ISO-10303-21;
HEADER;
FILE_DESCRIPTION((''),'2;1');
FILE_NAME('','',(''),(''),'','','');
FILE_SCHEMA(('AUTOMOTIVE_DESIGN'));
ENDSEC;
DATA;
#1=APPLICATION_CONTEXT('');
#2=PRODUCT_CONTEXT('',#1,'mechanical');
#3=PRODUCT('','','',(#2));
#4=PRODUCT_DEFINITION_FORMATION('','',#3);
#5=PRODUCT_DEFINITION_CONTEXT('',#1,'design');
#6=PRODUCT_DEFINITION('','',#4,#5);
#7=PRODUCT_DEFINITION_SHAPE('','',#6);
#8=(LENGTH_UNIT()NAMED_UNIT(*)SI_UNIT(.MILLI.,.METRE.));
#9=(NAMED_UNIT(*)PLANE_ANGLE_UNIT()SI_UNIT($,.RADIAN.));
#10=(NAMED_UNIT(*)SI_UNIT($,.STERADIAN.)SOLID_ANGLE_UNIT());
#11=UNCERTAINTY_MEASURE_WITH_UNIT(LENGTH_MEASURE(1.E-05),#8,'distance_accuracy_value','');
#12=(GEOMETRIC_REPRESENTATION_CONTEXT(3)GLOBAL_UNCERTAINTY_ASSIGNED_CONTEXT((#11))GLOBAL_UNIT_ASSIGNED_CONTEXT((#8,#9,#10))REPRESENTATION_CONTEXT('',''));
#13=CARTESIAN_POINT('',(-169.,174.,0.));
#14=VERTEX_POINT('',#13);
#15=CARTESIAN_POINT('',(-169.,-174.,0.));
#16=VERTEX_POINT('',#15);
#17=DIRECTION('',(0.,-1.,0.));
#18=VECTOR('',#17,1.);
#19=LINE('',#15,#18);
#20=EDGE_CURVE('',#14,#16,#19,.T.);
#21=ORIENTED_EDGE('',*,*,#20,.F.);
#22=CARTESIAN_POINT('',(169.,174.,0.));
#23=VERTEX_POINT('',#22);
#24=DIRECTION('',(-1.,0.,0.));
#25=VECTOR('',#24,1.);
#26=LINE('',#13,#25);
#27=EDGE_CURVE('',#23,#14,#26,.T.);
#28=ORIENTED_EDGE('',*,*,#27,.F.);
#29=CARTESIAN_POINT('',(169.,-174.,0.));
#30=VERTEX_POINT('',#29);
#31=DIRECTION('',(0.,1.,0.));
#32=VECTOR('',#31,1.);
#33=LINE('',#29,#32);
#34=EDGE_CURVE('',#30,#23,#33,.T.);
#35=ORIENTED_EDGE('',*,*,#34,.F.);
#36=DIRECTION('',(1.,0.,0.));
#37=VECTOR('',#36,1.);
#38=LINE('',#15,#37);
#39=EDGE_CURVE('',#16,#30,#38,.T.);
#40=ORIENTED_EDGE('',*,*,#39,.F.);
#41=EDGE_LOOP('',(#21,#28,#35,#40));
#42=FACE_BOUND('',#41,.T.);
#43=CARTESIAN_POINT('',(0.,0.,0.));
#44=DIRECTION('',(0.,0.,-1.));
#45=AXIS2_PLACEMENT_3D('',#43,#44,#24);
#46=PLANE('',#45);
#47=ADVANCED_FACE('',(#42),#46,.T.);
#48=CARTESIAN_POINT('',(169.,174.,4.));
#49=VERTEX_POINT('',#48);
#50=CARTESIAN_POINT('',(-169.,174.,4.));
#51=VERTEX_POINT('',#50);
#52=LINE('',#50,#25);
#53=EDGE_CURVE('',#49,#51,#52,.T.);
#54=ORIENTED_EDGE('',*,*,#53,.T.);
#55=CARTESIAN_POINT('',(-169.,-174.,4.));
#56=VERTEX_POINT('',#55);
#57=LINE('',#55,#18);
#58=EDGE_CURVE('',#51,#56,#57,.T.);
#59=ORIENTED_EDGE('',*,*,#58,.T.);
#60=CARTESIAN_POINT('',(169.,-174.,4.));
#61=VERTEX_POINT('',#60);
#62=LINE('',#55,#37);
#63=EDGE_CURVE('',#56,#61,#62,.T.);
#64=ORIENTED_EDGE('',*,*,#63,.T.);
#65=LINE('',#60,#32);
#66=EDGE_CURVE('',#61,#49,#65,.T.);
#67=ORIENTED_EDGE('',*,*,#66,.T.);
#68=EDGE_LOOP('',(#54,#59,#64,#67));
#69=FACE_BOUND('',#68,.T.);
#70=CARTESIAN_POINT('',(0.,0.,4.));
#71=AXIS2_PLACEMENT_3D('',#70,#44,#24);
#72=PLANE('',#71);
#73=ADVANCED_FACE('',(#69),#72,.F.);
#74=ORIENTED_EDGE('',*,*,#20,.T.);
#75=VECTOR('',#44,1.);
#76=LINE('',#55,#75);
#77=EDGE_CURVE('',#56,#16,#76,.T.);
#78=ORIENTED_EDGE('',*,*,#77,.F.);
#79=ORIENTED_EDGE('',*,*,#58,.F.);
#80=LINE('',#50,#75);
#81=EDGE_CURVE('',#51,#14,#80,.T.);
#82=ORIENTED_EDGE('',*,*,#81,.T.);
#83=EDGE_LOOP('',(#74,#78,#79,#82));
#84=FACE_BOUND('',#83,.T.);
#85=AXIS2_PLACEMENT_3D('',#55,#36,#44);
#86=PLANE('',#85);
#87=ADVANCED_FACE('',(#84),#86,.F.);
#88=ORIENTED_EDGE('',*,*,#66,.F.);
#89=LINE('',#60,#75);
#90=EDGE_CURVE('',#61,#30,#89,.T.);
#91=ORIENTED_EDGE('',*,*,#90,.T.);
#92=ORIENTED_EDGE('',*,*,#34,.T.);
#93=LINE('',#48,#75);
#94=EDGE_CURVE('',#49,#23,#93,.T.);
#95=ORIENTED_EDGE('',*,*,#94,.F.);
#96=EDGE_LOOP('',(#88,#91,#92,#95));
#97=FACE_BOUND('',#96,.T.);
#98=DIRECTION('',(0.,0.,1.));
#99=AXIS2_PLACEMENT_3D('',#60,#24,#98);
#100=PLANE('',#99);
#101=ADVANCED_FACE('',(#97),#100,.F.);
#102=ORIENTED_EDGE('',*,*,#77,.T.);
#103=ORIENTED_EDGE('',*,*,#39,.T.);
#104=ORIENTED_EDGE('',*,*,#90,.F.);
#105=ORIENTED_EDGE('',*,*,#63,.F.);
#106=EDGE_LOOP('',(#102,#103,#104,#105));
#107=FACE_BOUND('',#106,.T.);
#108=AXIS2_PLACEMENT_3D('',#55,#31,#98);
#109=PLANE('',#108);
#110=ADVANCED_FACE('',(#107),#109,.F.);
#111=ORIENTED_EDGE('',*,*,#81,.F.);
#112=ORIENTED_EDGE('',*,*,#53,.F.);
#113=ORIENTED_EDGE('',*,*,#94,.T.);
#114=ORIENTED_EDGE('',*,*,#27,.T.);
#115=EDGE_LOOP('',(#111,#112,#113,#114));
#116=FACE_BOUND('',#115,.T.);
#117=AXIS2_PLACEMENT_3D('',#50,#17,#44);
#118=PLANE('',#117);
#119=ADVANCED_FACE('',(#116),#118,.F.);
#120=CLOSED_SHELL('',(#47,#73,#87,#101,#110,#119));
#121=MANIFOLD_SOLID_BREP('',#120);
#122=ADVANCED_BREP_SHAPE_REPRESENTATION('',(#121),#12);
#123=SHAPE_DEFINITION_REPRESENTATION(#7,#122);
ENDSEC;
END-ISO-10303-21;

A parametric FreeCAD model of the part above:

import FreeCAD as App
import Part
import Sketcher

doc = App.newDocument("Part")
body = doc.addObject("PartDesign::Body", "Body")

sketch1 = body.newObject("Sketcher::SketchObject", "Sketch")
sketch1.AttachmentSupport = (doc.getObject("XY_Plane"), [""])
sketch1.MapMode = "FlatFace"
sketch1.addGeometry([
    Part.LineSegment(App.Vector(-169, 174, 0), App.Vector(-169, -174, 0)),
    Part.LineSegment(App.Vector(-169, -174, 0), App.Vector(169, -174, 0)),
    Part.LineSegment(App.Vector(169, -174, 0), App.Vector(169, 174, 0)),
    Part.LineSegment(App.Vector(169, 174, 0), App.Vector(-169, 174, 0)),
], False)
sketch1.addConstraint([
    Sketcher.Constraint("Coincident", 0, 2, 1, 1),
    Sketcher.Constraint("Coincident", 1, 2, 2, 1),
    Sketcher.Constraint("Coincident", 2, 2, 3, 1),
    Sketcher.Constraint("Coincident", 3, 2, 0, 1),
    Sketcher.Constraint("Vertical", 0),
    Sketcher.Constraint("Horizontal", 1),
    Sketcher.Constraint("Vertical", 2),
    Sketcher.Constraint("Horizontal", 3),
    Sketcher.Constraint("Symmetric", 0, 2, 2, 2, -1, 1),
    Sketcher.Constraint("DistanceX", 1, 1, 1, 2, 338.0),
    Sketcher.Constraint("DistanceY", 0, 2, 0, 1, 348.0),
])
pad1 = body.newObject("PartDesign::Pad", "Pad")
pad1.Profile = sketch1
pad1.Length = 4

doc.recompute()
